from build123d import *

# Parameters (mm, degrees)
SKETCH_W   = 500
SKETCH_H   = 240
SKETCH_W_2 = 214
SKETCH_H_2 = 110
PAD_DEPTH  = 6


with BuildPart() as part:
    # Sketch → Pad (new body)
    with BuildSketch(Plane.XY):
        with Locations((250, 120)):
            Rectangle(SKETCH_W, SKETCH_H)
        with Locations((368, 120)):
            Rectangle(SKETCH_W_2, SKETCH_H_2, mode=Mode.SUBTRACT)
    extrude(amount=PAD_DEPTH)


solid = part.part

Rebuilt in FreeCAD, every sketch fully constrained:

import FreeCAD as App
import Part
import Sketcher

doc = App.newDocument("Part")
body = doc.addObject("PartDesign::Body", "Body")

# Sketch on XY plane
sketch1 = doc.addObject("Sketcher::SketchObject", "Sketch")
body.addObject(sketch1)
sketch1.AttachmentSupport = (doc.XY_Plane, [""])
sketch1.MapMode = "FlatFace"
sketch1.addGeometry(Part.LineSegment(App.Vector(0, 240, 0), App.Vector(0, 0, 0)), False)
sketch1.addGeometry(Part.LineSegment(App.Vector(0, 0, 0), App.Vector(500, 0, 0)), False)
sketch1.addGeometry(Part.LineSegment(App.Vector(500, 0, 0), App.Vector(500, 240, 0)), False)
sketch1.addGeometry(Part.LineSegment(App.Vector(500, 240, 0), App.Vector(0, 240, 0)), False)
sketch1.addGeometry(Part.LineSegment(App.Vector(475, 65, 0), App.Vector(261, 65, 0)), False)
sketch1.addGeometry(Part.LineSegment(App.Vector(261, 65, 0), App.Vector(261, 175, 0)), False)
sketch1.addGeometry(Part.LineSegment(App.Vector(261, 175, 0), App.Vector(475, 175, 0)), False)
sketch1.addGeometry(Part.LineSegment(App.Vector(475, 175, 0), App.Vector(475, 65, 0)), False)
sketch1.addConstraint(Sketcher.Constraint("Coincident", 0, 2, 1, 1))
sketch1.addConstraint(Sketcher.Constraint("Coincident", 1, 2, 2, 1))
sketch1.addConstraint(Sketcher.Constraint("Coincident", 2, 2, 3, 1))
sketch1.addConstraint(Sketcher.Constraint("Coincident", 3, 2, 0, 1))
sketch1.addConstraint(Sketcher.Constraint("Coincident", 4, 2, 5, 1))
sketch1.addConstraint(Sketcher.Constraint("Coincident", 5, 2, 6, 1))
sketch1.addConstraint(Sketcher.Constraint("Coincident", 6, 2, 7, 1))
sketch1.addConstraint(Sketcher.Constraint("Coincident", 7, 2, 4, 1))
sketch1.addConstraint(Sketcher.Constraint("Vertical", 0))
sketch1.addConstraint(Sketcher.Constraint("Horizontal", 1))
sketch1.addConstraint(Sketcher.Constraint("Vertical", 2))
sketch1.addConstraint(Sketcher.Constraint("Horizontal", 3))
sketch1.addConstraint(Sketcher.Constraint("Horizontal", 4))
sketch1.addConstraint(Sketcher.Constraint("Vertical", 5))
sketch1.addConstraint(Sketcher.Constraint("Horizontal", 6))
sketch1.addConstraint(Sketcher.Constraint("Vertical", 7))
sketch1.addConstraint(Sketcher.Constraint("Coincident", 0, 2, -1, 1))
sketch1.addConstraint(Sketcher.Constraint("DistanceX", 1, 1, 1, 2, 500.0))
sketch1.addConstraint(Sketcher.Constraint("DistanceX", 4, 2, 4, 1, 214.0))
sketch1.addConstraint(Sketcher.Constraint("DistanceY", 0, 2, 0, 1, 240.0))
sketch1.addConstraint(Sketcher.Constraint("DistanceY", 5, 1, 5, 2, 110.0))
sketch1.addConstraint(Sketcher.Constraint("DistanceX", -1, 1, 4, 2, 261.0))
sketch1.addConstraint(Sketcher.Constraint("DistanceY", -1, 1, 4, 2, 65.0))
pad1 = doc.addObject("PartDesign::Pad", "Pad")
body.addObject(pad1)
pad1.Profile = sketch1
pad1.Length = 6

doc.recompute()
